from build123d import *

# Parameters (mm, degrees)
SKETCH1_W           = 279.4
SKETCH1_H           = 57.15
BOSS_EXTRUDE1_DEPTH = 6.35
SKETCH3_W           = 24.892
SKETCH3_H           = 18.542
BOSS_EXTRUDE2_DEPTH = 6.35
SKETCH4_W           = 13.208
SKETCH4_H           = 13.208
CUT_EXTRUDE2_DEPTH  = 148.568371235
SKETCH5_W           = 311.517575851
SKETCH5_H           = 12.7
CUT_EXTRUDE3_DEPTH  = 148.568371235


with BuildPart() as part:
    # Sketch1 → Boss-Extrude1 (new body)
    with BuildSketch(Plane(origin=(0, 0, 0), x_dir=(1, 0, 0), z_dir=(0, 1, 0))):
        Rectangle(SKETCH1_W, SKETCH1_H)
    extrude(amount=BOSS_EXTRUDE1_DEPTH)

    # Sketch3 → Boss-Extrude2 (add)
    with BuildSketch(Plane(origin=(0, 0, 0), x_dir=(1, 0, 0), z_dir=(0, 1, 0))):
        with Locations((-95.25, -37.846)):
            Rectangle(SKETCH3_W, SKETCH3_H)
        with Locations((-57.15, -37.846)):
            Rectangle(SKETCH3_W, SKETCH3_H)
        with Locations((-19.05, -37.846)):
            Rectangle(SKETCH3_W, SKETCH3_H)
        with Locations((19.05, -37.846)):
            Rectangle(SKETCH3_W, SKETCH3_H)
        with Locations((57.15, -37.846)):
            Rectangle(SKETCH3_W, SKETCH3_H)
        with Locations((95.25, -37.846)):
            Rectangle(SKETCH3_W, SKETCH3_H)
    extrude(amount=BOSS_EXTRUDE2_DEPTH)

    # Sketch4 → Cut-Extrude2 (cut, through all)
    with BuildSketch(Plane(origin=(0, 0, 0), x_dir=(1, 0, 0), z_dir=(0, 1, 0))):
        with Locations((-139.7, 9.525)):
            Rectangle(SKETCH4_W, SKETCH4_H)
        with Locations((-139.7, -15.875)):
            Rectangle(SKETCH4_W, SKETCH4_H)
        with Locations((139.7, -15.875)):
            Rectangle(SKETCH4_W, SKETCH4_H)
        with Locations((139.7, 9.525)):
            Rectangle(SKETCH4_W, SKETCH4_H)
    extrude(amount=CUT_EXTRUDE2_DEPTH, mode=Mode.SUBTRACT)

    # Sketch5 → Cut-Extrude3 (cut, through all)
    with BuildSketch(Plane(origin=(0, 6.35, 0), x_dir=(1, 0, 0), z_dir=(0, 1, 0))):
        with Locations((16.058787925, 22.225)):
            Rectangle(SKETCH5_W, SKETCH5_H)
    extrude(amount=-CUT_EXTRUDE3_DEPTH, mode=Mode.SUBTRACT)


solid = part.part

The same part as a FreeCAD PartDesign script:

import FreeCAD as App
import Part
import Sketcher
Q = App.Units.Quantity


def add_polygon(sketch, points):
    """Adds a closed chain of lines whose ends are joined by coincident constraints."""
    first, n = sketch.GeometryCount, len(points)
    for a, b in zip(points, points[1:] + points[:1]):
        sketch.addGeometry(Part.LineSegment(App.Vector(*a, 0), App.Vector(*b, 0)), False)
    for i in range(n):
        sketch.addConstraint(Sketcher.Constraint("Coincident", first + i, 2, first + (i + 1) % n, 1))

doc = App.newDocument("Part")
body = doc.addObject("PartDesign::Body", "Body")

sketch1 = body.newObject("Sketcher::SketchObject", "Sketch")
sketch1.AttachmentSupport = (doc.getObject("XZ_Plane"), [""])
sketch1.MapMode = "FlatFace"
add_polygon(sketch1, [(-140, -29), (-140, 29), (140, 29), (140, -29)])
sketch1.addConstraint([
    Sketcher.Constraint("Vertical", 0),
    Sketcher.Constraint("Horizontal", 1),
    Sketcher.Constraint("Vertical", 2),
    Sketcher.Constraint("Horizontal", 3),
    Sketcher.Constraint("Symmetric", 0, 2, 2, 2, -1, 1),
    Sketcher.Constraint("DistanceX", 1, 1, 1, 2, Q("11 in")),
    Sketcher.Constraint("DistanceY", 0, 1, 0, 2, Q("2.25 in")),
])
pad1 = body.newObject("PartDesign::Pad", "Pad")
pad1.Profile = sketch1
pad1.Length = Q("0.25 in")
pad1.Reversed = True

sketch2 = body.newObject("Sketcher::SketchObject", "Sketch001")
sketch2.AttachmentSupport = (doc.getObject("XZ_Plane"), [""])
sketch2.MapMode = "FlatFace"
add_polygon(sketch2, [(-108, 29), (-108, 47), (-83, 47), (-83, 29)])
add_polygon(sketch2, [(-70, 29), (-70, 47), (-45, 47), (-45, 29)])
add_polygon(sketch2, [(-31, 29), (-31, 47), (-7, 47), (-7, 29)])
add_polygon(sketch2, [(7, 29), (7, 47), (31, 47), (31, 29)])
add_polygon(sketch2, [(45, 29), (45, 47), (70, 47), (70, 29)])
add_polygon(sketch2, [(83, 29), (83, 47), (108, 47), (108, 29)])
sketch2.addConstraint([
    Sketcher.Constraint("Vertical", 0),
    Sketcher.Constraint("Horizontal", 1),
    Sketcher.Constraint("Vertical", 2),
    Sketcher.Constraint("Horizontal", 3),
    Sketcher.Constraint("Vertical", 4),
    Sketcher.Constraint("Horizontal", 5),
    Sketcher.Constraint("Vertical", 6),
    Sketcher.Constraint("Horizontal", 7),
    Sketcher.Constraint("Vertical", 8),
    Sketcher.Constraint("Horizontal", 9),
    Sketcher.Constraint("Vertical", 10),
    Sketcher.Constraint("Horizontal", 11),
    Sketcher.Constraint("Vertical", 12),
    Sketcher.Constraint("Horizontal", 13),
    Sketcher.Constraint("Vertical", 14),
    Sketcher.Constraint("Horizontal", 15),
    Sketcher.Constraint("Vertical", 16),
    Sketcher.Constraint("Horizontal", 17),
    Sketcher.Constraint("Vertical", 18),
    Sketcher.Constraint("Horizontal", 19),
    Sketcher.Constraint("Vertical", 20),
    Sketcher.Constraint("Horizontal", 21),
    Sketcher.Constraint("Vertical", 22),
    Sketcher.Constraint("Horizontal", 23),
    Sketcher.Constraint("Symmetric", 9, 2, 12, 2, -2),
    Sketcher.Constraint("Symmetric", 11, 2, 14, 2, -2),
    Sketcher.Constraint("Symmetric", 5, 2, 16, 2, -2),
    Sketcher.Constraint("Symmetric", 7, 2, 18, 2, -2),
    Sketcher.Constraint("Symmetric", 1, 2, 20, 2, -2),
    Sketcher.Constraint("Symmetric", 3, 2, 22, 2, -2),
    Sketcher.Constraint("Horizontal", 1, 2, 4, 2),
    Sketcher.Constraint("Horizontal", 3, 2, 6, 2),
    Sketcher.Constraint("Horizontal", 5, 2, 8, 2),
    Sketcher.Constraint("Horizontal", 7, 2, 10, 2),
    Sketcher.Constraint("Equal", 3, 5),
    Sketcher.Constraint("Equal", 7, 9),
    Sketcher.Constraint("DistanceX", 1, 1, 1, 2, Q("0.98 in")),
    Sketcher.Constraint("DistanceY", 0, 1, 0, 2, Q("0.73 in")),
    Sketcher.Constraint("DistanceX", 0, 2, 4, 2, Q("1.5 in")),
    Sketcher.Constraint("DistanceX", 4, 2, 8, 2, Q("1.5 in")),
    Sketcher.Constraint("DistanceX", 8, 2, 12, 2, Q("1.5 in")),
    Sketcher.Constraint("DistanceY", -1, 1, 0, 2, Q("1.855 in")),
])
pad2 = body.newObject("PartDesign::Pad", "Pad001")
pad2.Profile = sketch2
pad2.Length = Q("0.25 in")
pad2.Reversed = True

sketch3 = body.newObject("Sketcher::SketchObject", "Sketch002")
sketch3.AttachmentSupport = (doc.getObject("XZ_Plane"), [""])
sketch3.MapMode = "FlatFace"
add_polygon(sketch3, [(-146, -16), (-146, -3), (-133, -3), (-133, -16)])
add_polygon(sketch3, [(-146, 9), (-146, 22), (-133, 22), (-133, 9)])
add_polygon(sketch3, [(133, 9), (133, 22), (146, 22), (146, 9)])
add_polygon(sketch3, [(133, -16), (133, -3), (146, -3), (146, -16)])
sketch3.addConstraint([
    Sketcher.Constraint("Vertical", 0),
    Sketcher.Constraint("Horizontal", 1),
    Sketcher.Constraint("Vertical", 2),
    Sketcher.Constraint("Horizontal", 3),
    Sketcher.Constraint("Vertical", 4),
    Sketcher.Constraint("Horizontal", 5),
    Sketcher.Constraint("Vertical", 6),
    Sketcher.Constraint("Horizontal", 7),
    Sketcher.Constraint("Vertical", 8),
    Sketcher.Constraint("Horizontal", 9),
    Sketcher.Constraint("Vertical", 10),
    Sketcher.Constraint("Horizontal", 11),
    Sketcher.Constraint("Vertical", 12),
    Sketcher.Constraint("Horizontal", 13),
    Sketcher.Constraint("Vertical", 14),
    Sketcher.Constraint("Horizontal", 15),
    Sketcher.Constraint("Symmetric", 5, 2, 8, 2, -2),
    Sketcher.Constraint("Symmetric", 7, 2, 10, 2, -2),
    Sketcher.Constraint("Symmetric", 1, 2, 12, 2, -2),
    Sketcher.Constraint("Symmetric", 3, 2, 14, 2, -2),
    Sketcher.Constraint("Vertical", 3, 2, 4, 2),
    Sketcher.Constraint("Vertical", 2, 2, 5, 2),
    Sketcher.Constraint("Equal", 15, 0),
    Sketcher.Constraint("Equal", 2, 4),
    Sketcher.Constraint("DistanceY", 0, 2, 4, 2, Q("1 in")),
    Sketcher.Constraint("DistanceX", 4, 2, 8, 2, Q("11 in")),
    Sketcher.Constraint("DistanceX", 1, 1, 1, 2, Q("0.52 in")),
    Sketcher.Constraint("DistanceY", 0, 2, -1, 1, Q("0.115 in")),
])
pocket1 = body.newObject("PartDesign::Pocket", "Pocket")
pocket1.Profile = sketch3
pocket1.Type = "ThroughAll"

sketch4 = body.newObject("Sketcher::SketchObject", "Sketch003")
sketch4.AttachmentSupport = (doc.getObject("XZ_Plane"), [""])
sketch4.MapMode = "FlatFace"
sketch4.AttachmentOffset = App.Placement(App.Vector(0, 0, -0.25 * 25.4), App.Rotation())
add_polygon(sketch4, [(-140, -29), (-140, -16), (172, -16), (172, -29)])
sketch4.addConstraint([
    Sketcher.Constraint("Vertical", 0),
    Sketcher.Constraint("Horizontal", 1),
    Sketcher.Constraint("Vertical", 2),
    Sketcher.Constraint("Horizontal", 3),
    Sketcher.Constraint("DistanceY", 0, 1, 0, 2, Q("0.5 in")),
    Sketcher.Constraint("DistanceX", 0, 2, -1, 1, Q("5.5 in")),
    Sketcher.Constraint("DistanceY", 0, 2, -1, 1, Q("0.625 in")),
    Sketcher.Constraint("DistanceX", 1, 1, 1, 2, 311.517576),
])
pocket2 = body.newObject("PartDesign::Pocket", "Pocket001")
pocket2.Profile = sketch4
pocket2.Type = "ThroughAll"
pocket2.Reversed = True

doc.recompute()
